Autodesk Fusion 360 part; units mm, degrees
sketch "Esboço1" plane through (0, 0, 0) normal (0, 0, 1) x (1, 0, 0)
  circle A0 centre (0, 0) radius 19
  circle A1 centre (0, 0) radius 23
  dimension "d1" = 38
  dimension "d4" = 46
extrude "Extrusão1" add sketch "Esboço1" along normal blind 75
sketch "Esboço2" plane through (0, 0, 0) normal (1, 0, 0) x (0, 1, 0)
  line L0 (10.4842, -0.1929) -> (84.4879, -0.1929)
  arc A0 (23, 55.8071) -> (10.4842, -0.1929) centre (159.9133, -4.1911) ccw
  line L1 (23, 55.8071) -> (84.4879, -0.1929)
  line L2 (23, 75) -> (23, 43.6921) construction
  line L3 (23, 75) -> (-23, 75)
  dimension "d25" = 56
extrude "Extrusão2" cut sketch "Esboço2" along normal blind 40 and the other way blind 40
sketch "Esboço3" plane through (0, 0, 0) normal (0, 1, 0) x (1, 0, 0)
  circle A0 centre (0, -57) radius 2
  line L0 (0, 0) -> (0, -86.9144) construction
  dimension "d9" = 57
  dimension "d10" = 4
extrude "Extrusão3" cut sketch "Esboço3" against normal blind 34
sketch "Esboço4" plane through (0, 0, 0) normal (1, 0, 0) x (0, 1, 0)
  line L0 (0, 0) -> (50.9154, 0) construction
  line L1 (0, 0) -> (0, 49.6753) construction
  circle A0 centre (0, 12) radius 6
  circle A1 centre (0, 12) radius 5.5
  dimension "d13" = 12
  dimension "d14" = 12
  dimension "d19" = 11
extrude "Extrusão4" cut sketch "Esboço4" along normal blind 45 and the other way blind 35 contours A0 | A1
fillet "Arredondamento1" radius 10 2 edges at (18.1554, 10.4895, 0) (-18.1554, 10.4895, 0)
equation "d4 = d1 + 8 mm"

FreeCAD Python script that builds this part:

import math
import FreeCAD as App
import Part
import Sketcher
Q = App.Units.Quantity


def edges_at(feature, points):
    """Names of the edges that pass closest to the given points."""
    edges = feature.Shape.Edges
    near = lambda p: min(range(len(edges)), key=lambda i: edges[i].distToShape(Part.Vertex(*p))[0])
    return sorted({f"Edge{near(p) + 1}" for p in points})

doc = App.newDocument("Part")
params = doc.addObject("Spreadsheet::Sheet", "Params")
for row, (alias, value) in enumerate([
    ("sketch1_diameter", "46 mm"),
    ("sketch1_diameter2", "38 mm"),
    ("pad1_length", "75 mm"),
    ("sketch3_diameter", "4 mm"),
    ("pocket2_length", "34 mm"),
    ("sketch4_diameter", "12 mm"),
    ("fillet_radius", "10 mm"),
], start=1):
    params.set(f"A{row}", alias)
    params.set(f"B{row}", "=" + value)
    params.setAlias(f"B{row}", alias)

body = doc.addObject("PartDesign::Body", "Body")

# Sketch on XY plane
sketch1 = doc.addObject("Sketcher::SketchObject", "Sketch")
body.addObject(sketch1)
sketch1.AttachmentSupport = (doc.XY_Plane, [""])
sketch1.MapMode = "FlatFace"
sketch1.addGeometry(Part.Circle(App.Vector(0, 0, 0), App.Vector(0, 0, 1), 23), False)
sketch1.addGeometry(Part.Circle(App.Vector(0, 0, 0), App.Vector(0, 0, 1), 19), False)
sketch1.addConstraint(Sketcher.Constraint("Coincident", 0, 3, -1, 1))
sketch1.addConstraint(Sketcher.Constraint("Coincident", 1, 3, -1, 1))
sketch1.addConstraint(Sketcher.Constraint("Diameter", 0, Q("46 mm")))
sketch1.addConstraint(Sketcher.Constraint("Diameter", 1, Q("38 mm")))
sketch1.setExpression("Constraints[2]", "Params.sketch1_diameter")
sketch1.setExpression("Constraints[3]", "Params.sketch1_diameter2")
pad1 = doc.addObject("PartDesign::Pad", "Pad")
body.addObject(pad1)
pad1.Profile = sketch1
pad1.setExpression("Length", "Params.pad1_length")

# Sketch on YZ plane
sketch2 = doc.addObject("Sketcher::SketchObject", "Sketch001")
body.addObject(sketch2)
sketch2.AttachmentSupport = (doc.YZ_Plane, [""])
sketch2.MapMode = "FlatFace"
sketch2.addGeometry(Part.ArcOfCircle(Part.Circle(App.Vector(160, -4, 0), App.Vector(0, 0, 1), 149), math.radians(156), math.radians(178)), False)
sketch2.addGeometry(Part.LineSegment(App.Vector(10, 0, 0), App.Vector(84, 0, 0)), False)
sketch2.addGeometry(Part.LineSegment(App.Vector(84, 0, 0), App.Vector(23, 56, 0)), False)
sketch2.addConstraint(Sketcher.Constraint("Coincident", 0, 2, 1, 1))
sketch2.addConstraint(Sketcher.Constraint("Coincident", 1, 2, 2, 1))
sketch2.addConstraint(Sketcher.Constraint("Coincident", 2, 2, 0, 1))
sketch2.addConstraint(Sketcher.Constraint("Horizontal", 1))
sketch2.addConstraint(Sketcher.Constraint("DistanceY", 0, 2, 2, 2, Q("56 mm")))
sketch2.addConstraint(Sketcher.Constraint("DistanceX", -1, 1, 2, 2, Q("23 mm")))
sketch2.addConstraint(Sketcher.Constraint("Radius", 0, Q("149.4826 mm")))
sketch2.addConstraint(Sketcher.Constraint("Distance", 2, Q("83.167 mm")))
sketch2.addConstraint(Sketcher.Constraint("DistanceX", 1, 1, 1, 2, Q("74.0037 mm")))
sketch2.addConstraint(Sketcher.Constraint("DistanceY", 0, 3, -1, 1, Q("4.191 mm")))
pocket1 = doc.addObject("PartDesign::Pocket", "Pocket")
body.addObject(pocket1)
pocket1.Profile = sketch2
pocket1.Type = "ThroughAll"
pocket1.Midplane = True

# Sketch on XZ plane
sketch3 = doc.addObject("Sketcher::SketchObject", "Sketch002")
body.addObject(sketch3)
sketch3.AttachmentSupport = (doc.XZ_Plane, [""])
sketch3.MapMode = "FlatFace"
sketch3.addGeometry(Part.Circle(App.Vector(0, 57, 0), App.Vector(0, 0, 1), 2), False)
sketch3.addConstraint(Sketcher.Constraint("PointOnObject", 0, 3, -2))
sketch3.addConstraint(Sketcher.Constraint("Diameter", 0, Q("4 mm")))
sketch3.addConstraint(Sketcher.Constraint("DistanceY", -1, 1, 0, 3, Q("57 mm")))
sketch3.setExpression("Constraints[1]", "Params.sketch3_diameter")
pocket2 = doc.addObject("PartDesign::Pocket", "Pocket001")
body.addObject(pocket2)
pocket2.Profile = sketch3
pocket2.setExpression("Length", "Params.pocket2_length")
pocket2.Reversed = True

# Sketch on YZ plane
sketch4 = doc.addObject("Sketcher::SketchObject", "Sketch003")
body.addObject(sketch4)
sketch4.AttachmentSupport = (doc.YZ_Plane, [""])
sketch4.MapMode = "FlatFace"
sketch4.addGeometry(Part.Circle(App.Vector(0, 12, 0), App.Vector(0, 0, 1), 6), False)
sketch4.addConstraint(Sketcher.Constraint("PointOnObject", 0, 3, -2))
sketch4.addConstraint(Sketcher.Constraint("Diameter", 0, Q("12 mm")))
sketch4.addConstraint(Sketcher.Constraint("DistanceY", -1, 1, 0, 3, Q("12 mm")))
sketch4.setExpression("Constraints[1]", "Params.sketch4_diameter")
pocket3 = doc.addObject("PartDesign::Pocket", "Pocket002")
body.addObject(pocket3)
pocket3.Profile = sketch4
pocket3.Type = "ThroughAll"
pocket3.Midplane = True
doc.recompute()

fillet = doc.addObject("PartDesign::Fillet", "Fillet")
body.addObject(fillet)
fillet.Base = (pocket3, edges_at(pocket3, [(18.155, 10.489, 0), (-18.155, 10.489, 0)]))
fillet.setExpression("Radius", "Params.fillet_radius")

doc.recompute()
